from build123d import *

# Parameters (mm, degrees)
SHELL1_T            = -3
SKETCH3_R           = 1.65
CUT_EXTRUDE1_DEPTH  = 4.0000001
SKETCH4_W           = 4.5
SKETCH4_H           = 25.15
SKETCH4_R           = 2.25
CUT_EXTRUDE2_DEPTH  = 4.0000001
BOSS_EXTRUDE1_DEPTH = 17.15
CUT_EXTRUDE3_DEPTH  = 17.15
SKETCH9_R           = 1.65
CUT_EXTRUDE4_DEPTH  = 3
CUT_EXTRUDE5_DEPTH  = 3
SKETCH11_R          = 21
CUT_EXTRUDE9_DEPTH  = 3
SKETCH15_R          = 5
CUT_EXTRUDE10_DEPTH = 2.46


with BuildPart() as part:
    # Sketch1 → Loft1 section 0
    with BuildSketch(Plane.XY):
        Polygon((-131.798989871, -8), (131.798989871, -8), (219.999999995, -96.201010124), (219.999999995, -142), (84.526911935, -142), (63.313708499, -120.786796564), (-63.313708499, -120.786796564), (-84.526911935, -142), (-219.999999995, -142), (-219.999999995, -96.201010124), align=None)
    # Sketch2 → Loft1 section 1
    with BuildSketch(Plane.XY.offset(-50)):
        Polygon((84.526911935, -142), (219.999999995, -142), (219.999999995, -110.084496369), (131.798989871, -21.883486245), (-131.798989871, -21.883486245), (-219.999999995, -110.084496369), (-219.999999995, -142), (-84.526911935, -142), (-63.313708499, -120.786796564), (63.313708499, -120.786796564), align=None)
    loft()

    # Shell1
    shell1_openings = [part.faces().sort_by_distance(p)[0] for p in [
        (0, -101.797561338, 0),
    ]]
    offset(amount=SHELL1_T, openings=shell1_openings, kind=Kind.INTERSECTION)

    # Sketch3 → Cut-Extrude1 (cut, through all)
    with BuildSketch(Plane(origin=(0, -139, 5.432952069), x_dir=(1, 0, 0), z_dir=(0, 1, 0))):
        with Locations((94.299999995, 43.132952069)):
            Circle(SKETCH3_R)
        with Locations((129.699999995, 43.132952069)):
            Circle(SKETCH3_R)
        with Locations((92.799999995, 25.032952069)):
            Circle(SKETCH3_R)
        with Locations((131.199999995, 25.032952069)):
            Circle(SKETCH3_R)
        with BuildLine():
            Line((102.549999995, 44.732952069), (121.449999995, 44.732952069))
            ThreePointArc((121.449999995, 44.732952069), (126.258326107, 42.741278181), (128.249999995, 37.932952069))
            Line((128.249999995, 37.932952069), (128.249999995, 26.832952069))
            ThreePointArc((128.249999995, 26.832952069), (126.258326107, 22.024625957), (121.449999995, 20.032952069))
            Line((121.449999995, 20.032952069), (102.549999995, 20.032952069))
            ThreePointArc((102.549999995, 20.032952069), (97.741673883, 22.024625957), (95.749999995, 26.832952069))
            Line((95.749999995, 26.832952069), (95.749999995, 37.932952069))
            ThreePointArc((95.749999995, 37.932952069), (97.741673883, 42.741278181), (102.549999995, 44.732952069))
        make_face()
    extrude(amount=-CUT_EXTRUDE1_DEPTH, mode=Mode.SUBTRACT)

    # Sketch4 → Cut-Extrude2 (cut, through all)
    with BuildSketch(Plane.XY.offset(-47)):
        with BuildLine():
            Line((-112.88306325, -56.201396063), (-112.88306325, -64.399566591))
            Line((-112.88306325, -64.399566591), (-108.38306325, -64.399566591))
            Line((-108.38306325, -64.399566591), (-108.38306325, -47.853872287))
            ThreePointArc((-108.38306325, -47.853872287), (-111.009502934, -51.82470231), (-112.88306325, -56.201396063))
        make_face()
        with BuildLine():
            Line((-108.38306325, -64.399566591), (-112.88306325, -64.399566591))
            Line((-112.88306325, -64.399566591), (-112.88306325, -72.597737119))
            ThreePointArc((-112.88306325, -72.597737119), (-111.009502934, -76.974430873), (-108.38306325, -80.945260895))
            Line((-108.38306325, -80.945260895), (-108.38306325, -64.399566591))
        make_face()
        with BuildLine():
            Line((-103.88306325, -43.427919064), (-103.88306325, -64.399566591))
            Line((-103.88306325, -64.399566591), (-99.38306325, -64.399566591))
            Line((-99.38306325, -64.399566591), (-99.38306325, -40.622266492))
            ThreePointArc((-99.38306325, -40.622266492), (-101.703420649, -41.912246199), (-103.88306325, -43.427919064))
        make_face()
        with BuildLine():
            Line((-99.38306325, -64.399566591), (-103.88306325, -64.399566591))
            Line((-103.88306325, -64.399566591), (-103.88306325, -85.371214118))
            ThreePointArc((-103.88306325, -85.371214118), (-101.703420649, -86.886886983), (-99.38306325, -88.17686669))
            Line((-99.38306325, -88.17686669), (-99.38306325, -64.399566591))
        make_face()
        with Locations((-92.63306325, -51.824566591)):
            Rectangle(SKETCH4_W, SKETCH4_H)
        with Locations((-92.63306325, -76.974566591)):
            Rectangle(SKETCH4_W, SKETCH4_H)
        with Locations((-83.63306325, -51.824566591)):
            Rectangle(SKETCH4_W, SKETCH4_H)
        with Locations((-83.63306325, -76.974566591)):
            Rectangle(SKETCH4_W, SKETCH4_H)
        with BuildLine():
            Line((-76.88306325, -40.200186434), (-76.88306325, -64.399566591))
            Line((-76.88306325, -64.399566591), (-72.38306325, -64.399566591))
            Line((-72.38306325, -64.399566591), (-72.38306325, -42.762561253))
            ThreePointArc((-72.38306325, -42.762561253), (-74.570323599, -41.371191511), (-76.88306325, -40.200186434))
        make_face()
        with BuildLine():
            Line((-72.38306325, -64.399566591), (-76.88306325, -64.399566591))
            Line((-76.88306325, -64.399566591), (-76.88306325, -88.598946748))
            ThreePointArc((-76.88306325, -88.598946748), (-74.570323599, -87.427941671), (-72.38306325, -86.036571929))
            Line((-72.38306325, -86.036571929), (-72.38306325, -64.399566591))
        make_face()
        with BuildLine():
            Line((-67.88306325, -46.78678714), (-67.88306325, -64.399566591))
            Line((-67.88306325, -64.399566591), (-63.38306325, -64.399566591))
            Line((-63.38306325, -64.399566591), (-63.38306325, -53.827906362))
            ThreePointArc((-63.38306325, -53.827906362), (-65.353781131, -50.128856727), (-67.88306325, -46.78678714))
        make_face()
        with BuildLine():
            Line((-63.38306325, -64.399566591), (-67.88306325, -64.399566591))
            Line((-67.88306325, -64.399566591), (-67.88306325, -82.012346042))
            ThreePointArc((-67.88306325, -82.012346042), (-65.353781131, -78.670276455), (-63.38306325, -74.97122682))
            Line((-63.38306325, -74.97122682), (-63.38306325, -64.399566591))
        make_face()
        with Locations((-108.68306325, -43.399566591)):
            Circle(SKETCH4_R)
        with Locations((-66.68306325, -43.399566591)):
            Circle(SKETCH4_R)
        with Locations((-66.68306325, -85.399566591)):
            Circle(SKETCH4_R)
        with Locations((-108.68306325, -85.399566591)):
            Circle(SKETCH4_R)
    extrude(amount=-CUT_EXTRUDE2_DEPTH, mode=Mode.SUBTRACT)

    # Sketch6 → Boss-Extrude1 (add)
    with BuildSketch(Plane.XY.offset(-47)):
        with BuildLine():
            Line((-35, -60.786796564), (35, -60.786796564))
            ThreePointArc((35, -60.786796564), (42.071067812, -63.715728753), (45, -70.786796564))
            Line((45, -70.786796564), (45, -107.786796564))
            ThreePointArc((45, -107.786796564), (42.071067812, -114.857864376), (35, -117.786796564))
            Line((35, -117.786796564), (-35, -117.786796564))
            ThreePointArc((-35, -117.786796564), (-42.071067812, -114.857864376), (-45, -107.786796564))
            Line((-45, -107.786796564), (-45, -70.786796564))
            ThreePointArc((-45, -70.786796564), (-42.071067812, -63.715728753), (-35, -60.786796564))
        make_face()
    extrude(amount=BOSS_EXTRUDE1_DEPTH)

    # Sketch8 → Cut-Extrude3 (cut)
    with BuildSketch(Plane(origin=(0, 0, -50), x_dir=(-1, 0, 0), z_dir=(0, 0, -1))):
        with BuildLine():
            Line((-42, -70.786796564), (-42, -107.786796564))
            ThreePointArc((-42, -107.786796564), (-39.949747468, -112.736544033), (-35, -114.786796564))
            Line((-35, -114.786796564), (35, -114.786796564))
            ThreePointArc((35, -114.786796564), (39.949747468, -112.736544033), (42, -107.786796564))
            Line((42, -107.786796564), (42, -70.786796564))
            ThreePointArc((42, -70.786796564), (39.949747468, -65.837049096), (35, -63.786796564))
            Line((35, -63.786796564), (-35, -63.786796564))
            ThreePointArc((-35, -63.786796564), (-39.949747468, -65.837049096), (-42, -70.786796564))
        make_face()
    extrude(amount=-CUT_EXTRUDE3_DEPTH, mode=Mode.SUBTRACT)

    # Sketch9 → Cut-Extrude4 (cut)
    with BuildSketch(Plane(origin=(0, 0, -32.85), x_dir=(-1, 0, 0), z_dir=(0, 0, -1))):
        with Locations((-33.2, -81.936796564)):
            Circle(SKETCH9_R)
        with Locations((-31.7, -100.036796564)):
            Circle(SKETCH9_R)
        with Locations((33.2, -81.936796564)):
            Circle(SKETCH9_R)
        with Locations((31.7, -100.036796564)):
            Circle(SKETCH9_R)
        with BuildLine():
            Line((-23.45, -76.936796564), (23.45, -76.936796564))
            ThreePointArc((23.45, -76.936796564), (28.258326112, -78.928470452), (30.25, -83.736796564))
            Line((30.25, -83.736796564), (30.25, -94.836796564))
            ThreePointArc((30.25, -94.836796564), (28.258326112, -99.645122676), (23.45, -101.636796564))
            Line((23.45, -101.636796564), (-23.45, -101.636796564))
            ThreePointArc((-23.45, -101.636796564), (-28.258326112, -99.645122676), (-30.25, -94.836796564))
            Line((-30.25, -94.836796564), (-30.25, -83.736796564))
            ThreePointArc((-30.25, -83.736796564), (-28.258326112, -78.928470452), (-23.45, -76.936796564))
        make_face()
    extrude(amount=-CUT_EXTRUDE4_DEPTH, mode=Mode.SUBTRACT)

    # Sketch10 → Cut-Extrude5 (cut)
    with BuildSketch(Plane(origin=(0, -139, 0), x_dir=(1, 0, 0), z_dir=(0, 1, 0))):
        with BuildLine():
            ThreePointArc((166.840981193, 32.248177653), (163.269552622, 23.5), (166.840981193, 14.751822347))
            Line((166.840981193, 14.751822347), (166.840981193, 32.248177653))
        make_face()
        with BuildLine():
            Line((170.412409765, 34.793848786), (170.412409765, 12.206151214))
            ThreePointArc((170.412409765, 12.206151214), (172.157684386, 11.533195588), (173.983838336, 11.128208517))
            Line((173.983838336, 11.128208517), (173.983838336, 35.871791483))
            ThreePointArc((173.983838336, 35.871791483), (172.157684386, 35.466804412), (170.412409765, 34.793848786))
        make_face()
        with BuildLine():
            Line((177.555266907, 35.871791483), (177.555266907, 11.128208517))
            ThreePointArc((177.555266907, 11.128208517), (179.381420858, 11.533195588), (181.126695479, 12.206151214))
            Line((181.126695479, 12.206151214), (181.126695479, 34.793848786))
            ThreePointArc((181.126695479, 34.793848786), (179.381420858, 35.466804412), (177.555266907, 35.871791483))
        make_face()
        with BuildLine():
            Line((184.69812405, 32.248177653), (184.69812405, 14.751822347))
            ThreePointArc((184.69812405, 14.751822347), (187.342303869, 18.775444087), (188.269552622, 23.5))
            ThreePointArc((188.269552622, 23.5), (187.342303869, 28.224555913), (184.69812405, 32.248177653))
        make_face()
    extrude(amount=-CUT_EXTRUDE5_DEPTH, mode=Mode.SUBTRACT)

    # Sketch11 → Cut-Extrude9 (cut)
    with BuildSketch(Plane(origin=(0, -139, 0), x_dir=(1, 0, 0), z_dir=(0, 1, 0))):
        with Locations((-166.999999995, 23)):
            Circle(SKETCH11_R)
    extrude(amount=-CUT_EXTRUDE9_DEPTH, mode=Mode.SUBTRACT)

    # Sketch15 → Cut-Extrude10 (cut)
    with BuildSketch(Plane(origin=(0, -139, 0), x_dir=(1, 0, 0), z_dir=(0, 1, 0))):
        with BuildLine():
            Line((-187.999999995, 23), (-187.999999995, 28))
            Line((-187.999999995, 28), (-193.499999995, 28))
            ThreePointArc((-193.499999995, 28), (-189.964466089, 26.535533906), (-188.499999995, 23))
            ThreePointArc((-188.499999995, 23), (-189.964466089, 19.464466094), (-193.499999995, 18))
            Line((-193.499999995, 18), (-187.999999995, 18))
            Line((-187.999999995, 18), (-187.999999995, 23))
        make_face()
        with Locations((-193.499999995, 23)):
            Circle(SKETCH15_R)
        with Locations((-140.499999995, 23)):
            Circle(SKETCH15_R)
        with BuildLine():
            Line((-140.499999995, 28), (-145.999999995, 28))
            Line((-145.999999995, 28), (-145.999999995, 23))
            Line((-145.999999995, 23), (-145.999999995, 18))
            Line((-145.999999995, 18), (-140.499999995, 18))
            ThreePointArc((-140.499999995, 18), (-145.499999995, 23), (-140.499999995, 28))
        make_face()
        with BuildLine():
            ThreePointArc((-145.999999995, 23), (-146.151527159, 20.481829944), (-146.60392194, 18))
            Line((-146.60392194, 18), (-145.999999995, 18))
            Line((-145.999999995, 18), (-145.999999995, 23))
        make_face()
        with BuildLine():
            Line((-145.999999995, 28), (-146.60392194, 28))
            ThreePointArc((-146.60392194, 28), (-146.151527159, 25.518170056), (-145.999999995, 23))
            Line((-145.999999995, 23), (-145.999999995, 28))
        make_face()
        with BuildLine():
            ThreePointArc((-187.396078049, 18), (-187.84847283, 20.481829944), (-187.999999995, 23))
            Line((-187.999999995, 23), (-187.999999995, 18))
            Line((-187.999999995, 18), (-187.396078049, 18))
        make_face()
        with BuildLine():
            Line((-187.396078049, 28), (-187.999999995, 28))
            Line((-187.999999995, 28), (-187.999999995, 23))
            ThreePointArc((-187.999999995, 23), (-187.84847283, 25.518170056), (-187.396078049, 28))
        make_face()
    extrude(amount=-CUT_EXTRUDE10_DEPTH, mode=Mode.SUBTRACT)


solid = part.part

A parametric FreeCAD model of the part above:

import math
import FreeCAD as App
import Part
import Sketcher
from FreeCAD import Vector


def faces_at(feature, points):
    """Names of the faces that lie closest to the given points."""
    faces = feature.Shape.Faces
    near = lambda p: min(range(len(faces)), key=lambda i: faces[i].distToShape(Part.Vertex(*p))[0])
    return sorted({f"Face{near(p) + 1}" for p in points})


def add_polygon(sketch, points):
    """Adds a closed chain of lines whose ends are joined by coincident constraints."""
    first, n = sketch.GeometryCount, len(points)
    for a, b in zip(points, points[1:] + points[:1]):
        sketch.addGeometry(Part.LineSegment(App.Vector(*a, 0), App.Vector(*b, 0)), False)
    for i in range(n):
        sketch.addConstraint(Sketcher.Constraint("Coincident", first + i, 2, first + (i + 1) % n, 1))

doc = App.newDocument("Part")
body = doc.addObject("PartDesign::Body", "Body")

sketch1 = doc.addObject("Sketcher::SketchObject", "Sketch")
body.addObject(sketch1)
sketch1.AttachmentSupport = (doc.XY_Plane, [""])
sketch1.MapMode = "FlatFace"
add_polygon(sketch1, [(131.79899, -8), (-131.79899, -8), (-220, -96.20101), (-220, -142), (-84.526912, -142), (-63.313708, -120.786797), (63.313708, -120.786797), (84.526912, -142), (220, -142), (220, -96.20101)])
sketch1.addConstraint([
    Sketcher.Constraint("Horizontal", 0),
    Sketcher.Constraint("Vertical", 2),
    Sketcher.Constraint("Horizontal", 3),
    Sketcher.Constraint("Horizontal", 5),
    Sketcher.Constraint("Horizontal", 7),
    Sketcher.Constraint("Vertical", 8),
    Sketcher.Constraint("Symmetric", 3, 2, 6, 2, -2),
    Sketcher.Constraint("Symmetric", 1, 2, 8, 2, -2),
    Sketcher.Constraint("Parallel", 1, 4),
    Sketcher.Constraint("Perpendicular", 4, 6),
    Sketcher.Constraint("Parallel", 6, 9),
    Sketcher.Constraint("Equal", 4, 6),
    Sketcher.Constraint("Distance", 4, 30.0),
    Sketcher.Constraint("DistanceY", 0, 2, -1, 1, 8.0),
    Sketcher.Constraint("DistanceX", 1, 2, -1, 1, 220.0),
    Sketcher.Constraint("DistanceY", 2, 2, -1, 1, 142.0),
    Sketcher.Constraint("DistanceX", 0, 2, 0, 1, 263.59798),
    Sketcher.Constraint("DistanceX", 3, 1, 3, 2, 135.473088),
])

sketch2 = doc.addObject("Sketcher::SketchObject", "Sketch001")
body.addObject(sketch2)
sketch2.AttachmentSupport = (doc.XY_Plane, [""])
sketch2.MapMode = "FlatFace"
sketch2.AttachmentOffset = App.Placement(Vector(0, 0, -50), App.Rotation())
add_polygon(sketch2, [(84.526912, -142), (220, -142), (220, -110.084496), (131.79899, -21.883486), (-131.79899, -21.883486), (-220, -110.084496), (-220, -142), (-84.526912, -142), (-63.313708, -120.786797), (63.313708, -120.786797)])
sketch2.addConstraint([
    Sketcher.Constraint("Horizontal", 0),
    Sketcher.Constraint("Vertical", 1),
    Sketcher.Constraint("Horizontal", 3),
    Sketcher.Constraint("Vertical", 5),
    Sketcher.Constraint("Horizontal", 6),
    Sketcher.Constraint("Horizontal", 8),
    Sketcher.Constraint("Symmetric", 1, 2, 4, 2, -2),
    Sketcher.Constraint("Symmetric", 6, 2, 9, 2, -2),
    Sketcher.Constraint("Perpendicular", 2, 4),
    Sketcher.Constraint("Parallel", 4, 7),
    Sketcher.Constraint("Perpendicular", 7, 9),
    Sketcher.Constraint("Equal", 2, 4),
    Sketcher.Constraint("Distance", 7, 30.0),
    Sketcher.Constraint("DistanceX", -1, 1, 0, 2, 220.0),
    Sketcher.Constraint("DistanceY", 0, 2, -1, 1, 142.0),
    Sketcher.Constraint("DistanceX", 0, 1, 0, 2, 135.473088),
    Sketcher.Constraint("DistanceX", 3, 2, 3, 1, 263.59798),
    Sketcher.Constraint("DistanceY", 7, 2, 4, 2, 10.7023),
])

additiveloft = doc.addObject("PartDesign::AdditiveLoft", "AdditiveLoft")
body.addObject(additiveloft)
additiveloft.Profile = sketch1
additiveloft.Sections = [sketch2]
doc.recompute()

thickness = doc.addObject("PartDesign::Thickness", "Thickness")
body.addObject(thickness)
thickness.Base = (additiveloft, faces_at(additiveloft, [(9.082, -95.257, 0)]))
thickness.Value = 3
thickness.Reversed = True
thickness.Join = "Intersection"

sketch3 = doc.addObject("Sketcher::SketchObject", "Sketch002")
body.addObject(sketch3)
sketch3.AttachmentSupport = (doc.XZ_Plane, [""])
sketch3.MapMode = "FlatFace"
sketch3.AttachmentOffset = App.Placement(Vector(0, 0, 139), App.Rotation())
sketch3.addGeometry([
    Part.Circle(Vector(94.3, -37.7, 0), Vector(0, 0, 1), 1.65),
    Part.Circle(Vector(129.7, -37.7, 0), Vector(0, 0, 1), 1.65),
    Part.Circle(Vector(92.8, -19.6, 0), Vector(0, 0, 1), 1.65),
    Part.Circle(Vector(131.2, -19.6, 0), Vector(0, 0, 1), 1.65),
    Part.LineSegment(Vector(121.45, -39.3, 0), Vector(102.55, -39.3, 0)),
    Part.ArcOfCircle(Part.Circle(Vector(102.55, -32.5, 0), Vector(0, 0, 1), 6.8), math.radians(180), math.radians(270)),
    Part.LineSegment(Vector(95.75, -32.5, 0), Vector(95.75, -21.4, 0)),
    Part.ArcOfCircle(Part.Circle(Vector(102.55, -21.4, 0), Vector(0, 0, 1), 6.8), math.radians(90), math.radians(180)),
    Part.LineSegment(Vector(102.55, -14.6, 0), Vector(121.45, -14.6, 0)),
    Part.ArcOfCircle(Part.Circle(Vector(121.45, -21.4, 0), Vector(0, 0, 1), 6.8), math.radians(0), math.radians(90)),
    Part.LineSegment(Vector(128.25, -21.4, 0), Vector(128.25, -32.5, 0)),
    Part.ArcOfCircle(Part.Circle(Vector(121.45, -32.5, 0), Vector(0, 0, 1), 6.8), math.radians(-90), math.radians(0)),
], False)
sketch3.addConstraint([
    Sketcher.Constraint("Tangent", 4, 2, 5, 2),
    Sketcher.Constraint("Tangent", 5, 1, 6, 1),
    Sketcher.Constraint("Tangent", 6, 2, 7, 2),
    Sketcher.Constraint("Tangent", 7, 1, 8, 1),
    Sketcher.Constraint("Tangent", 8, 2, 9, 2),
    Sketcher.Constraint("Tangent", 9, 1, 10, 1),
    Sketcher.Constraint("Tangent", 10, 2, 11, 2),
    Sketcher.Constraint("Tangent", 11, 1, 4, 1),
    Sketcher.Constraint("Horizontal", 4),
    Sketcher.Constraint("Vertical", 6),
    Sketcher.Constraint("Horizontal", 8),
    Sketcher.Constraint("Vertical", 10),
    Sketcher.Constraint("Equal", 0, 1),
    Sketcher.Constraint("Equal", 1, 2),
    Sketcher.Constraint("Equal", 2, 3),
    Sketcher.Constraint("Equal", 5, 7),
    Sketcher.Constraint("Equal", 7, 9),
    Sketcher.Constraint("Equal", 9, 11),
    Sketcher.Constraint("Horizontal", 0, 3, 1, 3),
    Sketcher.Constraint("Horizontal", 2, 3, 3, 3),
    Sketcher.Constraint("Diameter", 0, 3.3),
    Sketcher.Constraint("Radius", 5, 6.8),
    Sketcher.Constraint("DistanceX", 4, 2, 4, 1, 18.9),
    Sketcher.Constraint("DistanceY", 6, 1, 6, 2, 11.1),
    Sketcher.Constraint("DistanceY", 2, 3, 7, 1, 5.0),
    Sketcher.Constraint("DistanceX", -1, 1, 0, 3, 94.3),
    Sketcher.Constraint("DistanceY", 0, 3, -1, 1, 37.7),
    Sketcher.Constraint("DistanceX", -1, 1, 1, 3, 129.7),
    Sketcher.Constraint("DistanceX", -1, 1, 2, 3, 92.8),
    Sketcher.Constraint("DistanceY", 2, 3, -1, 1, 19.6),
    Sketcher.Constraint("DistanceX", -1, 1, 3, 3, 131.2),
    Sketcher.Constraint("DistanceX", -1, 1, 5, 3, 102.55),
])
pocket1 = doc.addObject("PartDesign::Pocket", "Pocket")
body.addObject(pocket1)
pocket1.Profile = sketch3
pocket1.Type = "ThroughAll"
pocket1.Reversed = True

sketch4 = doc.addObject("Sketcher::SketchObject", "Sketch003")
body.addObject(sketch4)
sketch4.AttachmentSupport = (doc.XY_Plane, [""])
sketch4.MapMode = "FlatFace"
sketch4.AttachmentOffset = App.Placement(Vector(0, 0, -47), App.Rotation())
sketch4.addGeometry(Part.LineSegment(Vector(-112.883063, -56.201396, 0), Vector(-112.883063, -72.597737, 0)), False)
sketch4.addGeometry(Part.ArcOfCircle(Part.Circle(Vector(-87.683063, -64.399567, 0), Vector(0, 0, 1), 26.5), math.radians(-161.979038), math.radians(-141.364344)), False)
sketch4.addGeometry(Part.LineSegment(Vector(-108.383063, -80.945261, 0), Vector(-108.383063, -47.853872, 0)), False)
sketch4.addGeometry(Part.ArcOfCircle(Part.Circle(Vector(-87.683063, -64.399567, 0), Vector(0, 0, 1), 26.5), math.radians(141.364344), math.radians(161.979038)), False)
sketch4.addGeometry(Part.LineSegment(Vector(-103.883063, -43.427919, 0), Vector(-103.883063, -85.371214, 0)), False)
sketch4.addGeometry(Part.ArcOfCircle(Part.Circle(Vector(-87.683063, -64.399567, 0), Vector(0, 0, 1), 26.5), math.radians(-127.685064), math.radians(-116.200229)), False)
sketch4.addGeometry(Part.LineSegment(Vector(-99.383063, -88.176867, 0), Vector(-99.383063, -40.622266, 0)), False)
sketch4.addGeometry(Part.ArcOfCircle(Part.Circle(Vector(-87.683063, -64.399567, 0), Vector(0, 0, 1), 26.5), math.radians(116.200229), math.radians(127.685064)), False)
add_polygon(sketch4, [(-94.883063, -39.249567), (-94.883063, -89.549567), (-90.383063, -89.549567), (-90.383063, -39.249567)])
add_polygon(sketch4, [(-85.883063, -39.249567), (-85.883063, -89.549567), (-81.383063, -89.549567), (-81.383063, -39.249567)])
sketch4.addGeometry(Part.LineSegment(Vector(-76.883063, -40.200186, 0), Vector(-76.883063, -88.598947, 0)), False)
sketch4.addGeometry(Part.ArcOfCircle(Part.Circle(Vector(-87.683063, -64.399567, 0), Vector(0, 0, 1), 26.5), math.radians(-65.949155), math.radians(-54.735033)), False)
sketch4.addGeometry(Part.LineSegment(Vector(-72.383063, -86.036572, 0), Vector(-72.383063, -42.762561, 0)), False)
sketch4.addGeometry(Part.ArcOfCircle(Part.Circle(Vector(-87.683063, -64.399567, 0), Vector(0, 0, 1), 26.5), math.radians(54.735033), math.radians(65.949155)), False)
sketch4.addGeometry(Part.LineSegment(Vector(-67.883063, -46.786787, 0), Vector(-67.883063, -82.012346, 0)), False)
sketch4.addGeometry(Part.ArcOfCircle(Part.Circle(Vector(-87.683063, -64.399567, 0), Vector(0, 0, 1), 26.5), math.radians(-41.654191), math.radians(-23.511341)), False)
sketch4.addGeometry(Part.LineSegment(Vector(-63.383063, -74.971227, 0), Vector(-63.383063, -53.827906, 0)), False)
sketch4.addGeometry(Part.ArcOfCircle(Part.Circle(Vector(-87.683063, -64.399567, 0), Vector(0, 0, 1), 26.5), math.radians(23.511341), math.radians(41.654191)), False)
sketch4.addGeometry(Part.Circle(Vector(-108.683063, -43.399567, 0), Vector(0, 0, 1), 2.25), False)
sketch4.addGeometry(Part.Circle(Vector(-66.683063, -43.399567, 0), Vector(0, 0, 1), 2.25), False)
sketch4.addGeometry(Part.Circle(Vector(-66.683063, -85.399567, 0), Vector(0, 0, 1), 2.25), False)
sketch4.addGeometry(Part.Circle(Vector(-108.683063, -85.399567, 0), Vector(0, 0, 1), 2.25), False)
sketch4.addConstraint([
    Sketcher.Constraint("Coincident", 0, 2, 1, 1),
    Sketcher.Constraint("Coincident", 1, 2, 2, 1),
    Sketcher.Constraint("Coincident", 2, 2, 3, 1),
    Sketcher.Constraint("Coincident", 3, 2, 0, 1),
    Sketcher.Constraint("Coincident", 4, 2, 5, 1),
    Sketcher.Constraint("Coincident", 5, 2, 6, 1),
    Sketcher.Constraint("Coincident", 6, 2, 7, 1),
    Sketcher.Constraint("Coincident", 7, 2, 4, 1),
    Sketcher.Constraint("Coincident", 16, 2, 17, 1),
    Sketcher.Constraint("Coincident", 17, 2, 18, 1),
    Sketcher.Constraint("Coincident", 18, 2, 19, 1),
    Sketcher.Constraint("Coincident", 19, 2, 16, 1),
    Sketcher.Constraint("Coincident", 20, 2, 21, 1),
    Sketcher.Constraint("Coincident", 21, 2, 22, 1),
    Sketcher.Constraint("Coincident", 22, 2, 23, 1),
    Sketcher.Constraint("Coincident", 23, 2, 20, 1),
    Sketcher.Constraint("Vertical", 0),
    Sketcher.Constraint("Vertical", 2),
    Sketcher.Constraint("Vertical", 4),
    Sketcher.Constraint("Vertical", 6),
    Sketcher.Constraint("Vertical", 8),
    Sketcher.Constraint("Horizontal", 9),
    Sketcher.Constraint("Vertical", 10),
    Sketcher.Constraint("Horizontal", 11),
    Sketcher.Constraint("Vertical", 12),
    Sketcher.Constraint("Horizontal", 13),
    Sketcher.Constraint("Vertical", 14),
    Sketcher.Constraint("Horizontal", 15),
    Sketcher.Constraint("Vertical", 16),
    Sketcher.Constraint("Vertical", 18),
    Sketcher.Constraint("Vertical", 20),
    Sketcher.Constraint("Vertical", 22),
    Sketcher.Constraint("Coincident", 3, 3, 1, 3),
    Sketcher.Constraint("Coincident", 5, 3, 1, 3),
    Sketcher.Constraint("Coincident", 7, 3, 1, 3),
    Sketcher.Constraint("Coincident", 17, 3, 1, 3),
    Sketcher.Constraint("Coincident", 19, 3, 1, 3),
    Sketcher.Constraint("Coincident", 21, 3, 1, 3),
    Sketcher.Constraint("Coincident", 23, 3, 1, 3),
    Sketcher.Constraint("Equal", 1, 3),
    Sketcher.Constraint("Equal", 3, 5),
    Sketcher.Constraint("Equal", 5, 7),
    Sketcher.Constraint("Equal", 7, 17),
    Sketcher.Constraint("Equal", 17, 19),
    Sketcher.Constraint("Equal", 19, 21),
    Sketcher.Constraint("Equal", 21, 23),
    Sketcher.Constraint("Equal", 24, 25),
    Sketcher.Constraint("Equal", 25, 26),
    Sketcher.Constraint("Equal", 26, 27),
    Sketcher.Constraint("Horizontal", 24, 3, 25, 3),
    Sketcher.Constraint("Horizontal", 26, 3, 27, 3),
    Sketcher.Constraint("Horizontal", 9, 2, 12, 2),
    Sketcher.Constraint("Horizontal", 11, 2, 14, 2),
    Sketcher.Constraint("Vertical", 25, 3, 26, 3),
    Sketcher.Constraint("Vertical", 24, 3, 27, 3),
    Sketcher.Constraint("Equal", 11, 13),
    Sketcher.Constraint("Diameter", 24, 4.5),
    Sketcher.Constraint("Radius", 1, 26.5),
    Sketcher.Constraint("DistanceX", 9, 1, 9, 2, 4.5),
    Sketcher.Constraint("DistanceY", 8, 2, 8, 1, 50.3),
    Sketcher.Constraint("DistanceX", 24, 3, 7, 3, 21.0),
    Sketcher.Constraint("DistanceY", 7, 3, 24, 3, 21.0),
    Sketcher.Constraint("DistanceX", 17, 3, 25, 3, 21.0),
    Sketcher.Constraint("DistanceY", 26, 3, 19, 3, 21.0),
    Sketcher.Constraint("DistanceX", 0, 2, 4, 2, 9.0),
    Sketcher.Constraint("DistanceX", 1, 2, 5, 2, 9.0),
    Sketcher.Constraint("DistanceX", 4, 2, 8, 2, 9.0),
    Sketcher.Constraint("DistanceX", 5, 2, 9, 2, 9.0),
    Sketcher.Constraint("DistanceX", 8, 2, 12, 2, 9.0),
    Sketcher.Constraint("DistanceX", 12, 2, 16, 2, 9.0),
    Sketcher.Constraint("DistanceX", 13, 2, 17, 2, 9.0),
    Sketcher.Constraint("DistanceX", 16, 2, 20, 2, 9.0),
    Sketcher.Constraint("DistanceX", 17, 2, 21, 2, 9.0),
    Sketcher.Constraint("DistanceX", 0, 2, 27, 3, 4.2),
    Sketcher.Constraint("DistanceY", 8, 2, 27, 3, 4.15),
    Sketcher.Constraint("DistanceY", 1, 2, -1, 1, 80.945261),
    Sketcher.Constraint("DistanceX", 1, 3, -1, 1, 87.683063),
])
pocket2 = doc.addObject("PartDesign::Pocket", "Pocket001")
body.addObject(pocket2)
pocket2.Profile = sketch4
pocket2.Type = "ThroughAll"

sketch5 = doc.addObject("Sketcher::SketchObject", "Sketch004")
body.addObject(sketch5)
sketch5.AttachmentSupport = (doc.XY_Plane, [""])
sketch5.MapMode = "FlatFace"
sketch5.AttachmentOffset = App.Placement(Vector(0, 0, -47), App.Rotation())
sketch5.addGeometry([
    Part.LineSegment(Vector(35, -60.786797, 0), Vector(-35, -60.786797, 0)),
    Part.ArcOfCircle(Part.Circle(Vector(-35, -70.786797, 0), Vector(0, 0, 1), 10), math.radians(90), math.radians(180)),
    Part.LineSegment(Vector(-45, -70.786797, 0), Vector(-45, -107.786797, 0)),
    Part.ArcOfCircle(Part.Circle(Vector(-35, -107.786797, 0), Vector(0, 0, 1), 10), math.radians(180), math.radians(270)),
    Part.LineSegment(Vector(-35, -117.786797, 0), Vector(35, -117.786797, 0)),
    Part.ArcOfCircle(Part.Circle(Vector(35, -107.786797, 0), Vector(0, 0, 1), 10), math.radians(-90), math.radians(0)),
    Part.LineSegment(Vector(45, -107.786797, 0), Vector(45, -70.786797, 0)),
    Part.ArcOfCircle(Part.Circle(Vector(35, -70.786797, 0), Vector(0, 0, 1), 10), math.radians(0), math.radians(90)),
], False)
sketch5.addConstraint([
    Sketcher.Constraint("Tangent", 0, 2, 1, 1),
    Sketcher.Constraint("Tangent", 1, 2, 2, 1),
    Sketcher.Constraint("Tangent", 2, 2, 3, 1),
    Sketcher.Constraint("Tangent", 3, 2, 4, 1),
    Sketcher.Constraint("Tangent", 4, 2, 5, 1),
    Sketcher.Constraint("Tangent", 5, 2, 6, 1),
    Sketcher.Constraint("Tangent", 6, 2, 7, 1),
    Sketcher.Constraint("Tangent", 7, 2, 0, 1),
    Sketcher.Constraint("Horizontal", 0),
    Sketcher.Constraint("Vertical", 2),
    Sketcher.Constraint("Horizontal", 4),
    Sketcher.Constraint("Vertical", 6),
    Sketcher.Constraint("Equal", 1, 3),
    Sketcher.Constraint("Equal", 3, 5),
    Sketcher.Constraint("Equal", 5, 7),
    Sketcher.Constraint("Radius", 1, 10.0),
    Sketcher.Constraint("DistanceX", 0, 2, 0, 1, 70.0),
    Sketcher.Constraint("DistanceY", 2, 2, 2, 1, 37.0),
    Sketcher.Constraint("DistanceX", 1, 3, -1, 1, 35.0),
    Sketcher.Constraint("DistanceY", 1, 3, -1, 1, 70.786797),
])
pad1 = doc.addObject("PartDesign::Pad", "Pad")
body.addObject(pad1)
pad1.Profile = sketch5
pad1.Length = 17.15

sketch6 = doc.addObject("Sketcher::SketchObject", "Sketch005")
body.addObject(sketch6)
sketch6.AttachmentSupport = (doc.XY_Plane, [""])
sketch6.MapMode = "FlatFace"
sketch6.AttachmentOffset = App.Placement(Vector(0, 0, -50), App.Rotation())
sketch6.addGeometry([
    Part.LineSegment(Vector(42, -70.786797, 0), Vector(42, -107.786797, 0)),
    Part.ArcOfCircle(Part.Circle(Vector(35, -107.786797, 0), Vector(0, 0, 1), 7), math.radians(-90), math.radians(0)),
    Part.LineSegment(Vector(35, -114.786797, 0), Vector(-35, -114.786797, 0)),
    Part.ArcOfCircle(Part.Circle(Vector(-35, -107.786797, 0), Vector(0, 0, 1), 7), math.radians(180), math.radians(270)),
    Part.LineSegment(Vector(-42, -107.786797, 0), Vector(-42, -70.786797, 0)),
    Part.ArcOfCircle(Part.Circle(Vector(-35, -70.786797, 0), Vector(0, 0, 1), 7), math.radians(90), math.radians(180)),
    Part.LineSegment(Vector(-35, -63.786797, 0), Vector(35, -63.786797, 0)),
    Part.ArcOfCircle(Part.Circle(Vector(35, -70.786797, 0), Vector(0, 0, 1), 7), math.radians(0), math.radians(90)),
], False)
sketch6.addConstraint([
    Sketcher.Constraint("Tangent", 0, 2, 1, 2),
    Sketcher.Constraint("Tangent", 1, 1, 2, 1),
    Sketcher.Constraint("Tangent", 2, 2, 3, 2),
    Sketcher.Constraint("Tangent", 3, 1, 4, 1),
    Sketcher.Constraint("Tangent", 4, 2, 5, 2),
    Sketcher.Constraint("Tangent", 5, 1, 6, 1),
    Sketcher.Constraint("Tangent", 6, 2, 7, 2),
    Sketcher.Constraint("Tangent", 7, 1, 0, 1),
    Sketcher.Constraint("Vertical", 0),
    Sketcher.Constraint("Horizontal", 2),
    Sketcher.Constraint("Vertical", 4),
    Sketcher.Constraint("Horizontal", 6),
    Sketcher.Constraint("Equal", 1, 3),
    Sketcher.Constraint("Equal", 3, 5),
    Sketcher.Constraint("Equal", 5, 7),
    Sketcher.Constraint("Radius", 1, 7.0),
    Sketcher.Constraint("DistanceX", 2, 2, 2, 1, 70.0),
    Sketcher.Constraint("DistanceY", 0, 2, 0, 1, 37.0),
    Sketcher.Constraint("DistanceX", -1, 1, 1, 3, 35.0),
    Sketcher.Constraint("DistanceY", 1, 3, -1, 1, 107.786797),
])
pocket3 = doc.addObject("PartDesign::Pocket", "Pocket002")
body.addObject(pocket3)
pocket3.Profile = sketch6
pocket3.Length = 17.15
pocket3.Reversed = True

sketch7 = doc.addObject("Sketcher::SketchObject", "Sketch006")
body.addObject(sketch7)
sketch7.AttachmentSupport = (doc.XY_Plane, [""])
sketch7.MapMode = "FlatFace"
sketch7.AttachmentOffset = App.Placement(Vector(0, 0, -32.85), App.Rotation())
sketch7.addGeometry([
    Part.Circle(Vector(33.2, -81.936797, 0), Vector(0, 0, 1), 1.65),
    Part.Circle(Vector(31.7, -100.036797, 0), Vector(0, 0, 1), 1.65),
    Part.Circle(Vector(-33.2, -81.936797, 0), Vector(0, 0, 1), 1.65),
    Part.Circle(Vector(-31.7, -100.036797, 0), Vector(0, 0, 1), 1.65),
    Part.LineSegment(Vector(-23.45, -76.936797, 0), Vector(23.45, -76.936797, 0)),
    Part.ArcOfCircle(Part.Circle(Vector(23.45, -83.736797, 0), Vector(0, 0, 1), 6.8), math.radians(0), math.radians(90)),
    Part.LineSegment(Vector(30.25, -83.736797, 0), Vector(30.25, -94.836797, 0)),
    Part.ArcOfCircle(Part.Circle(Vector(23.45, -94.836797, 0), Vector(0, 0, 1), 6.8), math.radians(-90), math.radians(0)),
    Part.LineSegment(Vector(23.45, -101.636797, 0), Vector(-23.45, -101.636797, 0)),
    Part.ArcOfCircle(Part.Circle(Vector(-23.45, -94.836797, 0), Vector(0, 0, 1), 6.8), math.radians(180), math.radians(270)),
    Part.LineSegment(Vector(-30.25, -94.836797, 0), Vector(-30.25, -83.736797, 0)),
    Part.ArcOfCircle(Part.Circle(Vector(-23.45, -83.736797, 0), Vector(0, 0, 1), 6.8), math.radians(90), math.radians(180)),
], False)
sketch7.addConstraint([
    Sketcher.Constraint("Tangent", 4, 2, 5, 2),
    Sketcher.Constraint("Tangent", 5, 1, 6, 1),
    Sketcher.Constraint("Tangent", 6, 2, 7, 2),
    Sketcher.Constraint("Tangent", 7, 1, 8, 1),
    Sketcher.Constraint("Tangent", 8, 2, 9, 2),
    Sketcher.Constraint("Tangent", 9, 1, 10, 1),
    Sketcher.Constraint("Tangent", 10, 2, 11, 2),
    Sketcher.Constraint("Tangent", 11, 1, 4, 1),
    Sketcher.Constraint("Horizontal", 4),
    Sketcher.Constraint("Vertical", 6),
    Sketcher.Constraint("Horizontal", 8),
    Sketcher.Constraint("Vertical", 10),
    Sketcher.Constraint("Equal", 0, 1),
    Sketcher.Constraint("Equal", 1, 2),
    Sketcher.Constraint("Equal", 2, 3),
    Sketcher.Constraint("Equal", 5, 7),
    Sketcher.Constraint("Equal", 7, 9),
    Sketcher.Constraint("Equal", 9, 11),
    Sketcher.Constraint("Symmetric", 0, 3, 2, 3, -2),
    Sketcher.Constraint("Symmetric", 1, 3, 3, 3, -2),
    Sketcher.Constraint("Diameter", 0, 3.3),
    Sketcher.Constraint("Radius", 5, 6.8),
    Sketcher.Constraint("DistanceX", 4, 1, 4, 2, 46.9),
    Sketcher.Constraint("DistanceY", 6, 2, 6, 1, 11.1),
    Sketcher.Constraint("DistanceY", 0, 3, 4, 2, 5.0),
    Sketcher.Constraint("DistanceX", -1, 1, 0, 3, 33.2),
    Sketcher.Constraint("DistanceX", -1, 1, 1, 3, 31.7),
    Sketcher.Constraint("DistanceY", 1, 3, 0, 3, 18.1),
    Sketcher.Constraint("DistanceX", -1, 1, 5, 3, 23.45),
    Sketcher.Constraint("DistanceY", 0, 3, -1, 1, 81.936797),
])
pocket4 = doc.addObject("PartDesign::Pocket", "Pocket003")
body.addObject(pocket4)
pocket4.Profile = sketch7
pocket4.Length = 3
pocket4.Reversed = True

sketch8 = doc.addObject("Sketcher::SketchObject", "Sketch007")
body.addObject(sketch8)
sketch8.AttachmentSupport = (doc.XZ_Plane, [""])
sketch8.MapMode = "FlatFace"
sketch8.AttachmentOffset = App.Placement(Vector(0, 0, 139), App.Rotation())
sketch8.addGeometry([
    Part.ArcOfCircle(Part.Circle(Vector(175.769553, -23.5, 0), Vector(0, 0, 1), 12.5), math.radians(135.584691), math.radians(224.415309)),
    Part.LineSegment(Vector(166.840981, -14.751822, 0), Vector(166.840981, -32.248178, 0)),
    Part.LineSegment(Vector(170.41241, -34.793849, 0), Vector(170.41241, -12.206151, 0)),
    Part.ArcOfCircle(Part.Circle(Vector(175.769553, -23.5, 0), Vector(0, 0, 1), 12.5), math.radians(98.213211), math.radians(115.376934)),
    Part.LineSegment(Vector(173.983838, -11.128209, 0), Vector(173.983838, -35.871791, 0)),
    Part.ArcOfCircle(Part.Circle(Vector(175.769553, -23.5, 0), Vector(0, 0, 1), 12.5), math.radians(-115.376934), math.radians(-98.213211)),
    Part.LineSegment(Vector(177.555267, -35.871791, 0), Vector(177.555267, -11.128209, 0)),
    Part.ArcOfCircle(Part.Circle(Vector(175.769553, -23.5, 0), Vector(0, 0, 1), 12.5), math.radians(64.623066), math.radians(81.786789)),
    Part.LineSegment(Vector(181.126695, -12.206151, 0), Vector(181.126695, -34.793849, 0)),
    Part.ArcOfCircle(Part.Circle(Vector(175.769553, -23.5, 0), Vector(0, 0, 1), 12.5), math.radians(-81.786789), math.radians(-64.623066)),
    Part.LineSegment(Vector(184.698124, -32.248178, 0), Vector(184.698124, -14.751822, 0)),
    Part.ArcOfCircle(Part.Circle(Vector(175.769553, -23.5, 0), Vector(0, 0, 1), 12.5), math.radians(0), math.radians(44.415309)),
    Part.ArcOfCircle(Part.Circle(Vector(175.769553, -23.5, 0), Vector(0, 0, 1), 12.5), math.radians(-44.415309), math.radians(0)),
], False)
sketch8.addConstraint([
    Sketcher.Constraint("Coincident", 0, 1, 1, 1),
    Sketcher.Constraint("Coincident", 1, 2, 0, 2),
    Sketcher.Constraint("Coincident", 2, 2, 3, 2),
    Sketcher.Constraint("Coincident", 3, 1, 4, 1),
    Sketcher.Constraint("Coincident", 4, 2, 5, 2),
    Sketcher.Constraint("Coincident", 5, 1, 2, 1),
    Sketcher.Constraint("Coincident", 6, 2, 7, 2),
    Sketcher.Constraint("Coincident", 7, 1, 8, 1),
    Sketcher.Constraint("Coincident", 8, 2, 9, 2),
    Sketcher.Constraint("Coincident", 9, 1, 6, 1),
    Sketcher.Constraint("Coincident", 10, 2, 11, 2),
    Sketcher.Constraint("Tangent", 11, 1, 12, 2),
    Sketcher.Constraint("Coincident", 12, 1, 10, 1),
    Sketcher.Constraint("Vertical", 1),
    Sketcher.Constraint("Vertical", 2),
    Sketcher.Constraint("Vertical", 4),
    Sketcher.Constraint("Vertical", 6),
    Sketcher.Constraint("Vertical", 8),
    Sketcher.Constraint("Vertical", 10),
    Sketcher.Constraint("Coincident", 3, 3, 0, 3),
    Sketcher.Constraint("Coincident", 5, 3, 0, 3),
    Sketcher.Constraint("Coincident", 7, 3, 0, 3),
    Sketcher.Constraint("Coincident", 9, 3, 0, 3),
    Sketcher.Constraint("Coincident", 11, 3, 0, 3),
    Sketcher.Constraint("Equal", 0, 3),
    Sketcher.Constraint("Equal", 3, 5),
    Sketcher.Constraint("Equal", 5, 7),
    Sketcher.Constraint("Equal", 7, 9),
    Sketcher.Constraint("Equal", 9, 11),
    Sketcher.Constraint("Equal", 11, 12),
    Sketcher.Constraint("Horizontal", 3, 1, 6, 2),
    Sketcher.Constraint("Horizontal", 2, 2, 7, 1),
    Sketcher.Constraint("Horizontal", 0, 1, 10, 2),
    Sketcher.Constraint("Horizontal", 12, 3, 11, 1),
    Sketcher.Constraint("Radius", 0, 12.5),
    Sketcher.Constraint("DistanceY", 0, 3, -1, 1, 23.5),
    Sketcher.Constraint("DistanceY", 1, 2, 1, 1, 17.496355),
    Sketcher.Constraint("DistanceY", 2, 1, 2, 2, 22.587698),
    Sketcher.Constraint("DistanceY", 4, 2, 4, 1, 24.743583),
    Sketcher.Constraint("DistanceX", -1, 1, 0, 1, 166.840981),
])
pocket5 = doc.addObject("PartDesign::Pocket", "Pocket004")
body.addObject(pocket5)
pocket5.Profile = sketch8
pocket5.Length = 3
pocket5.Reversed = True

sketch9 = doc.addObject("Sketcher::SketchObject", "Sketch008")
body.addObject(sketch9)
sketch9.AttachmentSupport = (doc.XZ_Plane, [""])
sketch9.MapMode = "FlatFace"
sketch9.AttachmentOffset = App.Placement(Vector(0, 0, 139), App.Rotation())
sketch9.addGeometry(Part.Circle(Vector(-167, -23, 0), Vector(0, 0, 1), 21), False)
sketch9.addConstraint([
    Sketcher.Constraint("Diameter", 0, 42.0),
    Sketcher.Constraint("DistanceX", 0, 3, -1, 1, 167.0),
    Sketcher.Constraint("DistanceY", 0, 3, -1, 1, 23.0),
])
pocket6 = doc.addObject("PartDesign::Pocket", "Pocket005")
body.addObject(pocket6)
pocket6.Profile = sketch9
pocket6.Length = 3
pocket6.Reversed = True

sketch10 = doc.addObject("Sketcher::SketchObject", "Sketch009")
body.addObject(sketch10)
sketch10.AttachmentSupport = (doc.XZ_Plane, [""])
sketch10.MapMode = "FlatFace"
sketch10.AttachmentOffset = App.Placement(Vector(0, 0, 139), App.Rotation())
sketch10.addGeometry([
    Part.ArcOfCircle(Part.Circle(Vector(-193.5, -23, 0), Vector(0, 0, 1), 5), math.radians(90), math.radians(270)),
    Part.LineSegment(Vector(-193.5, -18, 0), Vector(-187.396078, -18, 0)),
    Part.ArcOfCircle(Part.Circle(Vector(-167, -23, 0), Vector(0, 0, 1), 21), math.radians(166.225853), math.radians(180)),
    Part.ArcOfCircle(Part.Circle(Vector(-167, -23, 0), Vector(0, 0, 1), 21), math.radians(-180), math.radians(-166.225853)),
    Part.LineSegment(Vector(-187.396078, -28, 0), Vector(-193.5, -28, 0)),
    Part.LineSegment(Vector(-140.5, -28, 0), Vector(-146.603922, -28, 0)),
    Part.ArcOfCircle(Part.Circle(Vector(-167, -23, 0), Vector(0, 0, 1), 21), math.radians(-13.774147), math.radians(0)),
    Part.ArcOfCircle(Part.Circle(Vector(-167, -23, 0), Vector(0, 0, 1), 21), math.radians(0), math.radians(13.774147)),
    Part.LineSegment(Vector(-146.603922, -18, 0), Vector(-140.5, -18, 0)),
    Part.ArcOfCircle(Part.Circle(Vector(-140.5, -23, 0), Vector(0, 0, 1), 5), math.radians(-90), math.radians(90)),
], False)
sketch10.addConstraint([
    Sketcher.Constraint("Tangent", 0, 1, 1, 1),
    Sketcher.Constraint("Coincident", 1, 2, 2, 1),
    Sketcher.Constraint("Tangent", 2, 2, 3, 1),
    Sketcher.Constraint("Coincident", 3, 2, 4, 1),
    Sketcher.Constraint("Tangent", 4, 2, 0, 2),
    Sketcher.Constraint("Coincident", 5, 2, 6, 1),
    Sketcher.Constraint("Tangent", 6, 2, 7, 1),
    Sketcher.Constraint("Coincident", 7, 2, 8, 1),
    Sketcher.Constraint("Tangent", 8, 2, 9, 2),
    Sketcher.Constraint("Tangent", 9, 1, 5, 1),
    Sketcher.Constraint("Horizontal", 1),
    Sketcher.Constraint("Horizontal", 4),
    Sketcher.Constraint("Horizontal", 5),
    Sketcher.Constraint("Horizontal", 8),
    Sketcher.Constraint("Coincident", 6, 3, 2, 3),
    Sketcher.Constraint("Equal", 2, 3),
    Sketcher.Constraint("Equal", 3, 6),
    Sketcher.Constraint("Equal", 6, 7),
    Sketcher.Constraint("Equal", 0, 9),
    Sketcher.Constraint("Horizontal", 0, 3, 2, 3),
    Sketcher.Constraint("Horizontal", 7, 3, 9, 3),
    Sketcher.Constraint("Horizontal", 9, 3, 2, 2),
    Sketcher.Constraint("Horizontal", 2, 2, 6, 2),
    Sketcher.Constraint("Equal", 4, 5),
    Sketcher.Constraint("Radius", 0, 5.0),
    Sketcher.Constraint("Radius", 2, 21.0),
    Sketcher.Constraint("DistanceY", 0, 3, -1, 1, 23.0),
    Sketcher.Constraint("DistanceX", 2, 3, -1, 1, 167.0),
    Sketcher.Constraint("DistanceX", 0, 3, 9, 3, 53.0),
])
pocket7 = doc.addObject("PartDesign::Pocket", "Pocket006")
body.addObject(pocket7)
pocket7.Profile = sketch10
pocket7.Length = 2.46
pocket7.Reversed = True

doc.recompute()
